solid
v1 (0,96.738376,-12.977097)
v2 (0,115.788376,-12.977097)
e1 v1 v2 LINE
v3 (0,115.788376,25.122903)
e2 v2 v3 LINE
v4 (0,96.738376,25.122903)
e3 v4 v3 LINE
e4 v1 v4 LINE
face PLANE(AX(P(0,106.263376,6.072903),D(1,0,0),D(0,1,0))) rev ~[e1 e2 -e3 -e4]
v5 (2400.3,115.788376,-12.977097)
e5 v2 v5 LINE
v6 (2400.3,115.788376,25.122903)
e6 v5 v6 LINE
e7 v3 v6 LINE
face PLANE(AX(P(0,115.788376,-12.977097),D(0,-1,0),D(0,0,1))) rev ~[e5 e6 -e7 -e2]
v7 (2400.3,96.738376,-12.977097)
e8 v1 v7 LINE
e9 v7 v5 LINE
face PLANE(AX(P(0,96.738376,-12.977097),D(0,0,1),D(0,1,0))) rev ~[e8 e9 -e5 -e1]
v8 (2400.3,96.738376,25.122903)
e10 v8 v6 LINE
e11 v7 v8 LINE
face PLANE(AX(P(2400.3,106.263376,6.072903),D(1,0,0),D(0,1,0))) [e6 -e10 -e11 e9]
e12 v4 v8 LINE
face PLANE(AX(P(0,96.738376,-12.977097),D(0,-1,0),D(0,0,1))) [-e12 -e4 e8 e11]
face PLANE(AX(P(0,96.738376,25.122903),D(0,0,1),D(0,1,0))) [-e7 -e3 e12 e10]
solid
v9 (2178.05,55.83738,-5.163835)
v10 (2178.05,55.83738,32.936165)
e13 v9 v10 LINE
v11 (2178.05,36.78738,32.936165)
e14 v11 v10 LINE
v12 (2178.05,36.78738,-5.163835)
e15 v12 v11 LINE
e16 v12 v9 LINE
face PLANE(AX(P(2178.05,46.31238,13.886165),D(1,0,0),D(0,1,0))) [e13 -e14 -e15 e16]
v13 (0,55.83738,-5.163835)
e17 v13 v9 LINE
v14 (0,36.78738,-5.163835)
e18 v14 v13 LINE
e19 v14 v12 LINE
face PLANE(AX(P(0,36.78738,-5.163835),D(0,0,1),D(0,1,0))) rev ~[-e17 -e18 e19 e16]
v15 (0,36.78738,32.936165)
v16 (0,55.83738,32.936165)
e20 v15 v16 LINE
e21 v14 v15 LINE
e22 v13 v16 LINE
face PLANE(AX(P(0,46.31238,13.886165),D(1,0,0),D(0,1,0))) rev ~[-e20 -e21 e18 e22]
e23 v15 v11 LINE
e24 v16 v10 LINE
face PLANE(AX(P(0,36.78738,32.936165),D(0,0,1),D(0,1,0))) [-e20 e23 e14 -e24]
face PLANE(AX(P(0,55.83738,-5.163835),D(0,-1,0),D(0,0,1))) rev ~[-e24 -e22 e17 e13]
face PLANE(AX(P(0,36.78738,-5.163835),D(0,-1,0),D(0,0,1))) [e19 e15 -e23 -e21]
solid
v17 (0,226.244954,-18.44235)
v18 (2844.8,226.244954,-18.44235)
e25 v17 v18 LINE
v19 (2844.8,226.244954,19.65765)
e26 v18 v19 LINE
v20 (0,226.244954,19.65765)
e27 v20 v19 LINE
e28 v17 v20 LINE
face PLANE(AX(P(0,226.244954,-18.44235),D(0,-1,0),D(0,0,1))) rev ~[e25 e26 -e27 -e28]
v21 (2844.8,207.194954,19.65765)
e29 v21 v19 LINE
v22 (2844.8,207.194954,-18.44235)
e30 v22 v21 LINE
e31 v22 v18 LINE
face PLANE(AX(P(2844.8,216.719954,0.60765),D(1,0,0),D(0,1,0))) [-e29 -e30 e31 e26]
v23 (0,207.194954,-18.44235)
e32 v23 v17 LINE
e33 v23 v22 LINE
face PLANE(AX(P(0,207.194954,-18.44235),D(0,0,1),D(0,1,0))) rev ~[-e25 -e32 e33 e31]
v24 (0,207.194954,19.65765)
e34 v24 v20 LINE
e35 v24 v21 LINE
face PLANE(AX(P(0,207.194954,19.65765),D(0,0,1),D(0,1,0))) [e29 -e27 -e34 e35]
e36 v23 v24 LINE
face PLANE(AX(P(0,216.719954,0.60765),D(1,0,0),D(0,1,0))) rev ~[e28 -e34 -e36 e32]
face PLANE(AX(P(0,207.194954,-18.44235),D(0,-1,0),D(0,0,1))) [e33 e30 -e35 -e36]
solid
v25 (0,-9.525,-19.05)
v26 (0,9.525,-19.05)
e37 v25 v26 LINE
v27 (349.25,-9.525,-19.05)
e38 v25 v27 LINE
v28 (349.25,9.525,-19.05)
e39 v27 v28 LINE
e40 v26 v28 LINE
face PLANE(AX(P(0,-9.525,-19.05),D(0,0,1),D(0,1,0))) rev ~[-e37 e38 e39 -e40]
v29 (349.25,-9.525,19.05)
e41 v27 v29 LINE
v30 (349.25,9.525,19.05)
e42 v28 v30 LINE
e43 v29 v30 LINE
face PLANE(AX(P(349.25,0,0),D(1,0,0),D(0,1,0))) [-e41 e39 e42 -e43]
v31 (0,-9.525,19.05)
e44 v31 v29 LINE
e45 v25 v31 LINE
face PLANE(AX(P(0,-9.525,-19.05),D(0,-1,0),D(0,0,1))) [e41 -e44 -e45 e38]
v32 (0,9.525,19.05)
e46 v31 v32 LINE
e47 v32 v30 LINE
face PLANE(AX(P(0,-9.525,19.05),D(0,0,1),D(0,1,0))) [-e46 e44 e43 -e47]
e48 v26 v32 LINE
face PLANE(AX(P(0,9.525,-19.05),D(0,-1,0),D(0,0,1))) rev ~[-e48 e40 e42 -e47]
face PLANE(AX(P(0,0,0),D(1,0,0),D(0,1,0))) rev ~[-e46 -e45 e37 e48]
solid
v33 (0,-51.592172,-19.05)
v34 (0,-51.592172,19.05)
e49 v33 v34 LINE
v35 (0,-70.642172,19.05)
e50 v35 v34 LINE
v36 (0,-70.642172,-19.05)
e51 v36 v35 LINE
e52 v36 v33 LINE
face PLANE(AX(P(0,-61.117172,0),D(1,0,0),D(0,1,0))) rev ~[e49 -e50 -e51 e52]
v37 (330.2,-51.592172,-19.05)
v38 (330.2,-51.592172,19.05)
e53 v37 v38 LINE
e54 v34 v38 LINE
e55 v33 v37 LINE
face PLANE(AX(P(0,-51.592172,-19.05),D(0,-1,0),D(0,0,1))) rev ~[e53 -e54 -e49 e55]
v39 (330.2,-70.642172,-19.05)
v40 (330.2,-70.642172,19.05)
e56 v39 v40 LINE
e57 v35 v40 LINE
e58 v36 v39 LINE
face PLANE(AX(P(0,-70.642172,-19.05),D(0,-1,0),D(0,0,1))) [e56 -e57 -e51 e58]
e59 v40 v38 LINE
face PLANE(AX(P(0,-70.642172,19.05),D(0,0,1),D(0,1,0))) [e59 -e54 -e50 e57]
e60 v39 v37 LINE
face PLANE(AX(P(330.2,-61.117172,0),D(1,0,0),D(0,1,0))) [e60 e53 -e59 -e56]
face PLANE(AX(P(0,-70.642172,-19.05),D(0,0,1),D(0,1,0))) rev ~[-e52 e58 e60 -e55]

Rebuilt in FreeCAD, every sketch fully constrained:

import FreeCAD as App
import Part
import Sketcher
from FreeCAD import Vector
Q = App.Units.Quantity


def add_polygon(sketch, points):
    """Adds a closed chain of lines whose ends are joined by coincident constraints."""
    first, n = sketch.GeometryCount, len(points)
    for a, b in zip(points, points[1:] + points[:1]):
        sketch.addGeometry(Part.LineSegment(App.Vector(*a, 0), App.Vector(*b, 0)), False)
    for i in range(n):
        sketch.addConstraint(Sketcher.Constraint("Coincident", first + i, 2, first + (i + 1) % n, 1))

doc = App.newDocument("Part")
body = doc.addObject("PartDesign::Body", "Body")

sketch1 = body.newObject("Sketcher::SketchObject", "Sketch")
sketch1.AttachmentSupport = (doc.getObject("YZ_Plane"), [""])
sketch1.MapMode = "FlatFace"
add_polygon(sketch1, [(-9.525, 19.05), (-9.525, -19.05), (9.525, -19.05), (9.525, 19.05)])
sketch1.addConstraint([
    Sketcher.Constraint("Vertical", 0),
    Sketcher.Constraint("Horizontal", 1),
    Sketcher.Constraint("Vertical", 2),
    Sketcher.Constraint("Horizontal", 3),
    Sketcher.Constraint("Symmetric", 0, 2, 2, 2, -1, 1),
    Sketcher.Constraint("DistanceY", 0, 2, 0, 1, Q("1.5 in")),
    Sketcher.Constraint("DistanceX", 1, 1, 1, 2, Q("0.75 in")),
])
pad1 = body.newObject("PartDesign::Pad", "Pad")
pad1.Profile = sketch1
pad1.Length = Q("13.75 in")
body2 = doc.addObject("PartDesign::Body", "Body001")

sketch2 = body2.newObject("Sketcher::SketchObject", "Sketch001")
sketch2.AttachmentSupport = (doc.getObject("YZ_Plane001"), [""])
sketch2.MapMode = "FlatFace"
add_polygon(sketch2, [(96.738376, 25.122903), (96.738376, -12.977097), (115.788376, -12.977097), (115.788376, 25.122903)])
sketch2.addConstraint([
    Sketcher.Constraint("Vertical", 0),
    Sketcher.Constraint("Horizontal", 1),
    Sketcher.Constraint("Vertical", 2),
    Sketcher.Constraint("Horizontal", 3),
    Sketcher.Constraint("DistanceY", 0, 2, 0, 1, Q("1.5 in")),
    Sketcher.Constraint("DistanceX", 1, 1, 1, 2, Q("0.75 in")),
    Sketcher.Constraint("DistanceX", -1, 1, 0, 2, Q("96.738376 mm")),
    Sketcher.Constraint("DistanceY", 0, 2, -1, 1, Q("12.977097 mm")),
])
pad2 = body2.newObject("PartDesign::Pad", "Pad001")
pad2.Profile = sketch2
pad2.Length = Q("94.5 in")
body3 = doc.addObject("PartDesign::Body", "Body002")

sketch3 = body3.newObject("Sketcher::SketchObject", "Sketch002")
sketch3.AttachmentSupport = (doc.getObject("YZ_Plane002"), [""])
sketch3.MapMode = "FlatFace"
add_polygon(sketch3, [(207.194954, 19.65765), (207.194954, -18.44235), (226.244954, -18.44235), (226.244954, 19.65765)])
sketch3.addConstraint([
    Sketcher.Constraint("Vertical", 0),
    Sketcher.Constraint("Horizontal", 1),
    Sketcher.Constraint("Vertical", 2),
    Sketcher.Constraint("Horizontal", 3),
    Sketcher.Constraint("DistanceY", 0, 2, 0, 1, Q("1.5 in")),
    Sketcher.Constraint("DistanceX", 1, 1, 1, 2, Q("0.75 in")),
    Sketcher.Constraint("DistanceY", 0, 2, -1, 1, Q("18.44235 mm")),
    Sketcher.Constraint("DistanceX", -1, 1, 0, 2, Q("207.194954 mm")),
])
pad3 = body3.newObject("PartDesign::Pad", "Pad002")
pad3.Profile = sketch3
pad3.Length = Q("112 in")
body4 = doc.addObject("PartDesign::Body", "Body003")

sketch4 = body4.newObject("Sketcher::SketchObject", "Sketch003")
sketch4.AttachmentSupport = (doc.getObject("YZ_Plane003"), [""])
sketch4.MapMode = "FlatFace"
add_polygon(sketch4, [(36.78738, 32.936165), (36.78738, -5.163835), (55.83738, -5.163835), (55.83738, 32.936165)])
sketch4.addConstraint([
    Sketcher.Constraint("Vertical", 0),
    Sketcher.Constraint("Horizontal", 1),
    Sketcher.Constraint("Vertical", 2),
    Sketcher.Constraint("Horizontal", 3),
    Sketcher.Constraint("DistanceY", 0, 2, 0, 1, Q("1.5 in")),
    Sketcher.Constraint("DistanceX", 1, 1, 1, 2, Q("0.75 in")),
    Sketcher.Constraint("DistanceX", -1, 1, 0, 2, Q("36.78738 mm")),
    Sketcher.Constraint("DistanceY", 0, 2, -1, 1, Q("5.163835 mm")),
])
pad4 = body4.newObject("PartDesign::Pad", "Pad003")
pad4.Profile = sketch4
pad4.Length = Q("85.75 in")
body5 = doc.addObject("PartDesign::Body", "Body004")

sketch5 = body5.newObject("Sketcher::SketchObject", "Sketch004")
sketch5.AttachmentSupport = (doc.getObject("YZ_Plane004"), [""])
sketch5.MapMode = "FlatFace"
add_polygon(sketch5, [(-70.642172, 19.05), (-70.642172, -19.05), (-51.592172, -19.05), (-51.592172, 19.05)])
sketch5.addConstraint([
    Sketcher.Constraint("Vertical", 0),
    Sketcher.Constraint("Horizontal", 1),
    Sketcher.Constraint("Vertical", 2),
    Sketcher.Constraint("Horizontal", 3),
    Sketcher.Constraint("DistanceY", 0, 2, 0, 1, Q("1.5 in")),
    Sketcher.Constraint("DistanceX", 1, 1, 1, 2, Q("0.75 in")),
    Sketcher.Constraint("DistanceY", 0, 2, -1, 1, Q("0.75 in")),
    Sketcher.Constraint("DistanceX", 1, 2, -1, 1, Q("51.592172 mm")),
])
pad5 = body5.newObject("PartDesign::Pad", "Pad004")
pad5.Profile = sketch5
pad5.Length = Q("13 in")

doc.recompute()
